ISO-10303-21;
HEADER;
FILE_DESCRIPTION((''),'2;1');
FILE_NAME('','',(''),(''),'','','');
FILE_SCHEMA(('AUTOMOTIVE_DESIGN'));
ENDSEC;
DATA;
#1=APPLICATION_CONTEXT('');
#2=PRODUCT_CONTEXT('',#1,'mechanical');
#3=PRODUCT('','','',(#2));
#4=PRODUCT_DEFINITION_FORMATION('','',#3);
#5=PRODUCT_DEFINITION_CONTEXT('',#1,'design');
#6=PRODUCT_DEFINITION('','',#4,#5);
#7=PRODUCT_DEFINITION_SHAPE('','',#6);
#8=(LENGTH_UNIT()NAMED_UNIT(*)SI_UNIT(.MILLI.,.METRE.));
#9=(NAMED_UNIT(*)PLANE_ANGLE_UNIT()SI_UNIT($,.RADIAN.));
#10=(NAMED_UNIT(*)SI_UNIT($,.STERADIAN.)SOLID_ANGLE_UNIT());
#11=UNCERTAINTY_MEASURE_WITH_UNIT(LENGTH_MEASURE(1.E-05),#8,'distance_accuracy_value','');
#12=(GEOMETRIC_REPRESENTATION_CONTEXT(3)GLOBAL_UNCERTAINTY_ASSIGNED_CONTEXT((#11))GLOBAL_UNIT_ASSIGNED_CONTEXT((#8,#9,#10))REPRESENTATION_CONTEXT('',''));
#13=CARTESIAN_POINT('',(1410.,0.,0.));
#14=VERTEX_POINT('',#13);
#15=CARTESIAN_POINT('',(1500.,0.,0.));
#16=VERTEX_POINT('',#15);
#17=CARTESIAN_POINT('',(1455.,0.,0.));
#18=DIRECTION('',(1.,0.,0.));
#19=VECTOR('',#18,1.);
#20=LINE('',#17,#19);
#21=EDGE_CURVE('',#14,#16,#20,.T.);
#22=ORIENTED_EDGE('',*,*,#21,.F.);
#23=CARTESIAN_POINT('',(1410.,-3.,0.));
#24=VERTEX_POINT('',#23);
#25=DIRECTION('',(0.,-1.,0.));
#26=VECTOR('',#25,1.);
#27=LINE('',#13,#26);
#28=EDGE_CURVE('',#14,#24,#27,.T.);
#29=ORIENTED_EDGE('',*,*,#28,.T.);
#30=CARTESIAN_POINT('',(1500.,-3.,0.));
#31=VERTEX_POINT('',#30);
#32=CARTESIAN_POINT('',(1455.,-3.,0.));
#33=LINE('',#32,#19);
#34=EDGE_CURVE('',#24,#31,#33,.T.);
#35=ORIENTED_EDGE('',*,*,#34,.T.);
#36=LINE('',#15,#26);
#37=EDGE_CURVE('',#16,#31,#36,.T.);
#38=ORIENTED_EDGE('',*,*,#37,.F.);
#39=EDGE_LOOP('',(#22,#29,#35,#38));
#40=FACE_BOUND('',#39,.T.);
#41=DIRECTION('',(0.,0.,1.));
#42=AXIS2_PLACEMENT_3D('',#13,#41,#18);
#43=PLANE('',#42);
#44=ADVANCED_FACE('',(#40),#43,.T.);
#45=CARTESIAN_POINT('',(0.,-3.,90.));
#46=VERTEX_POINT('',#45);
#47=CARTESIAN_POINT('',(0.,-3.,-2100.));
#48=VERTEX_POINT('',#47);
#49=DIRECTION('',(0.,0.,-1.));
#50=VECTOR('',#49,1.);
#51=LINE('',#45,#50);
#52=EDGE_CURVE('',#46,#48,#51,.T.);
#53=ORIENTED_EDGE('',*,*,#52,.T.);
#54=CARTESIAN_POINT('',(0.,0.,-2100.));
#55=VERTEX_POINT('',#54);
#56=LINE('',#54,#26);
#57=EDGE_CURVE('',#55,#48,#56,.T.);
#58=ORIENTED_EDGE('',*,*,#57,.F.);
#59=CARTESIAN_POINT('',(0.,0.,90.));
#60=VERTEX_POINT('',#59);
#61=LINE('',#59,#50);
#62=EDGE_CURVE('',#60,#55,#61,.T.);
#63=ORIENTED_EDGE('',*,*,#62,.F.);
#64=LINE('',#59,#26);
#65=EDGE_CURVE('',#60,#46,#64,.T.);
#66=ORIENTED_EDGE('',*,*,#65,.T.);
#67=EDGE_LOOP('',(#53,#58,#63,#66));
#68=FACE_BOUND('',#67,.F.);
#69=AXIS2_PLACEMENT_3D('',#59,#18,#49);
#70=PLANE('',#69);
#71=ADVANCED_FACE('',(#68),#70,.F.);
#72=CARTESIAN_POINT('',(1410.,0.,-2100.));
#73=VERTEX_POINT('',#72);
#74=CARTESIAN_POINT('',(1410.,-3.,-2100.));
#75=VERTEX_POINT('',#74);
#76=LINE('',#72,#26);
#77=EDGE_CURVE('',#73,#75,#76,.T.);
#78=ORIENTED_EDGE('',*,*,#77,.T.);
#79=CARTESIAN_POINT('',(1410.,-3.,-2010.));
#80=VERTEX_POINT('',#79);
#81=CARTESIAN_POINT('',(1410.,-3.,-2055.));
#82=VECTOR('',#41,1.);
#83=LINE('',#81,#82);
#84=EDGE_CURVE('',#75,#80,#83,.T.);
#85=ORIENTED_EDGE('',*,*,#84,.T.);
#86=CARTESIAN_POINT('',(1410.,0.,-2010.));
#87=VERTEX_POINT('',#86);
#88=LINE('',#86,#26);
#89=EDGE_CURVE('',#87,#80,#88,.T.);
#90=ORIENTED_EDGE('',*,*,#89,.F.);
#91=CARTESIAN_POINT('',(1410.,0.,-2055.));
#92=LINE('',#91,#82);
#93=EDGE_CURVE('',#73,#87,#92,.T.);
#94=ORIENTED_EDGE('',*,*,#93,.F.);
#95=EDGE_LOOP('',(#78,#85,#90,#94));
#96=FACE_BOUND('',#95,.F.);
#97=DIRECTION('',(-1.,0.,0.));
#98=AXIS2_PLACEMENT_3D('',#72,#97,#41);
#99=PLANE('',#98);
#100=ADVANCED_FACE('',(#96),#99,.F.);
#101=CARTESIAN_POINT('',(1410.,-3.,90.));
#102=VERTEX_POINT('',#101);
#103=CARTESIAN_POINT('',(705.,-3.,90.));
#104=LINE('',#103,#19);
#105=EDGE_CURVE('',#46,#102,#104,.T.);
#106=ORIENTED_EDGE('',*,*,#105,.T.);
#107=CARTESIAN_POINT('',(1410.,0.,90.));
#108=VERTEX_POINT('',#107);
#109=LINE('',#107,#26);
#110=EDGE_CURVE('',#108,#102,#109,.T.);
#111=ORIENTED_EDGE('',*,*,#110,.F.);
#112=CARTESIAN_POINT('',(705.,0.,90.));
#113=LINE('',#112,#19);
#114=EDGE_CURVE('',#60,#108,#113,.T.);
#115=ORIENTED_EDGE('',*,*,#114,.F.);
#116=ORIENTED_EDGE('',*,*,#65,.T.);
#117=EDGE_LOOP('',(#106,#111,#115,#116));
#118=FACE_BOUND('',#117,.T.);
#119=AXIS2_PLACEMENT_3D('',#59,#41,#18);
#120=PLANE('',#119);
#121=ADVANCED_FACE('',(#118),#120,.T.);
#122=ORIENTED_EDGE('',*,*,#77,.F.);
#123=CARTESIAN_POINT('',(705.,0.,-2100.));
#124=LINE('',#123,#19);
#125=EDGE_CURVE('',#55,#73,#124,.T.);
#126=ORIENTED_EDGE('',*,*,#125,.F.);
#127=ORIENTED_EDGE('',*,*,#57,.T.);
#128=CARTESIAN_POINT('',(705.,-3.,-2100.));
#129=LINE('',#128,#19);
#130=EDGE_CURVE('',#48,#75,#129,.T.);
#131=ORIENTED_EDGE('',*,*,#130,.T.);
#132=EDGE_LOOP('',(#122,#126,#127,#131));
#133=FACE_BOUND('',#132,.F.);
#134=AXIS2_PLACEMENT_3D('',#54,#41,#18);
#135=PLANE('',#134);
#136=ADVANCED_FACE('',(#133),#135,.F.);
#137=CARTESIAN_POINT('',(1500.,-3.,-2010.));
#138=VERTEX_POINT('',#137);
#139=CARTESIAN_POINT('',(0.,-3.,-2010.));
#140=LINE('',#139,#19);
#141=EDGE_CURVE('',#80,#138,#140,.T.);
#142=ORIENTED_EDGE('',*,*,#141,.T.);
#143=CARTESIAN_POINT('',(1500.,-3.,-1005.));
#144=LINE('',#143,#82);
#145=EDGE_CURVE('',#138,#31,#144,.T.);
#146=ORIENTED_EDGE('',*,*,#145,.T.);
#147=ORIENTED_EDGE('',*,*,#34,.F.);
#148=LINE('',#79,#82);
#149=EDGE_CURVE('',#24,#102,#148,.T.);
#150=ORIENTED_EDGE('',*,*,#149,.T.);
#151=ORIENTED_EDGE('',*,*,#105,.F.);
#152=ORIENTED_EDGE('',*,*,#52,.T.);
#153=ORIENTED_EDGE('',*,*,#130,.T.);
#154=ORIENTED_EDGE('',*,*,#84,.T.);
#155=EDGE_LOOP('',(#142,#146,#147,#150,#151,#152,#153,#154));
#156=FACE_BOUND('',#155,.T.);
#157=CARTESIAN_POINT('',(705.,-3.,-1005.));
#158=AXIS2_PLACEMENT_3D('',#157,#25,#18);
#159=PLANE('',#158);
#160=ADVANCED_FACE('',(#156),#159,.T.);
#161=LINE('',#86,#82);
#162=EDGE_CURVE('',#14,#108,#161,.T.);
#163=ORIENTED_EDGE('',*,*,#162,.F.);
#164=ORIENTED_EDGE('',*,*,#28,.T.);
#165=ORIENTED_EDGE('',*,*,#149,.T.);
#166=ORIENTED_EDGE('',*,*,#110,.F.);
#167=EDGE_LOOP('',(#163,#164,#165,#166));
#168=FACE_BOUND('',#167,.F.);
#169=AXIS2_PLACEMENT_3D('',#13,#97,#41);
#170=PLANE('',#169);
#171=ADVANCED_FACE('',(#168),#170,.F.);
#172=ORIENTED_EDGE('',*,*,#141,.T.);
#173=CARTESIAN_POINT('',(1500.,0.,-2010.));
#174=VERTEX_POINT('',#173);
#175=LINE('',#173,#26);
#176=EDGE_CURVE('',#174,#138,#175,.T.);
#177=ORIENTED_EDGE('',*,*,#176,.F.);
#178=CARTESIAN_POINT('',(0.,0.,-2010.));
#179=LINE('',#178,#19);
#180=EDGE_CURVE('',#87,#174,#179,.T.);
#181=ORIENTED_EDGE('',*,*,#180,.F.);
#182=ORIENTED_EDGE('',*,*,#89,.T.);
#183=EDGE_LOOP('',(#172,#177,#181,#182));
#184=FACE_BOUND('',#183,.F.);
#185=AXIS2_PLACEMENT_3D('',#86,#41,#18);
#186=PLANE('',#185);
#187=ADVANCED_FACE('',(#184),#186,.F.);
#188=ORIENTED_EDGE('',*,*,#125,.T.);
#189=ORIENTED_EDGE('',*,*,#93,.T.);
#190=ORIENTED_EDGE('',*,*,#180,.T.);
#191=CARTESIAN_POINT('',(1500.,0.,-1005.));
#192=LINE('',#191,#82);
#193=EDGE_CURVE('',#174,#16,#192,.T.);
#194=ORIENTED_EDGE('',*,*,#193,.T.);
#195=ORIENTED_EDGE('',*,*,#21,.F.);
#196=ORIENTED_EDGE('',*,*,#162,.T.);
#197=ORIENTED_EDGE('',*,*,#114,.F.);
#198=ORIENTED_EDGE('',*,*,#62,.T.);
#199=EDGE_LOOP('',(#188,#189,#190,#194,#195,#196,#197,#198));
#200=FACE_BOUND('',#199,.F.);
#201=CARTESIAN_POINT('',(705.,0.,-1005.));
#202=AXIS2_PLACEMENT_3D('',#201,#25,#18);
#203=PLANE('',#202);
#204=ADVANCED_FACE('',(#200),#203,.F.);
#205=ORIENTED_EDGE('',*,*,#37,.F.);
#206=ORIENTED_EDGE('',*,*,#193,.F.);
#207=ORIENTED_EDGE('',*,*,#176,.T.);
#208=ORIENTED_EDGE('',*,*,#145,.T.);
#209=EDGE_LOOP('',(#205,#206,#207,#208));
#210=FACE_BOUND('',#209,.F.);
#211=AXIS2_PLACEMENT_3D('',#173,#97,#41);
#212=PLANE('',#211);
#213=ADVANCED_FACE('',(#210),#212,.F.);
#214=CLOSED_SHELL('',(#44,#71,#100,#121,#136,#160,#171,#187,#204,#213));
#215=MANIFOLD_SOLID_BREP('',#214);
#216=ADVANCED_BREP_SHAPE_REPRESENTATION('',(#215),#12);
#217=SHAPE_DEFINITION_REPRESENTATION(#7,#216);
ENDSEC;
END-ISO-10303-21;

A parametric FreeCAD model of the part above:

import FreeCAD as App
import Part
import Sketcher
Q = App.Units.Quantity


def add_polygon(sketch, points):
    """Adds a closed chain of lines whose ends are joined by coincident constraints."""
    first, n = sketch.GeometryCount, len(points)
    for a, b in zip(points, points[1:] + points[:1]):
        sketch.addGeometry(Part.LineSegment(App.Vector(*a, 0), App.Vector(*b, 0)), False)
    for i in range(n):
        sketch.addConstraint(Sketcher.Constraint("Coincident", first + i, 2, first + (i + 1) % n, 1))

doc = App.newDocument("Part")
params = doc.addObject("Spreadsheet::Sheet", "Params")
for row, (alias, value) in enumerate([
    ("sketch1_width", "90 mm"),
    ("sketch1_width2", "1410 mm"),
    ("sketch1_height", "2010 mm"),
    ("pad1_length", "3 mm"),
], start=1):
    params.set(f"A{row}", alias)
    params.set(f"B{row}", "=" + value)
    params.setAlias(f"B{row}", alias)

body = doc.addObject("PartDesign::Body", "Body")

sketch1 = body.newObject("Sketcher::SketchObject", "Sketch")
sketch1.AttachmentSupport = (doc.getObject("XZ_Plane"), [""])
sketch1.MapMode = "FlatFace"
add_polygon(sketch1, [(1410, -2010), (1500, -2010), (1500, 0), (1410, 0), (1410, 90), (0, 90), (0, -2100), (1410, -2100)])
sketch1.addConstraint(Sketcher.Constraint("Horizontal", 0))
sketch1.addConstraint(Sketcher.Constraint("Vertical", 1))
sketch1.addConstraint(Sketcher.Constraint("Horizontal", 2))
sketch1.addConstraint(Sketcher.Constraint("Vertical", 3))
sketch1.addConstraint(Sketcher.Constraint("Horizontal", 4))
sketch1.addConstraint(Sketcher.Constraint("Vertical", 5))
sketch1.addConstraint(Sketcher.Constraint("Horizontal", 6))
sketch1.addConstraint(Sketcher.Constraint("Vertical", 7))
sketch1.addConstraint(Sketcher.Constraint("PointOnObject", 1, 2, -1))
sketch1.addConstraint(Sketcher.Constraint("PointOnObject", 4, 2, -2))
sketch1.addConstraint(Sketcher.Constraint("Vertical", 3, 2, 6, 2))
sketch1.addConstraint(Sketcher.Constraint("Equal", 2, 3))
sketch1.addConstraint(Sketcher.Constraint("Equal", 3, 7))
sketch1.addConstraint(Sketcher.Constraint("DistanceX", 0, 1, 0, 2, Q("90 mm")))
sketch1.addConstraint(Sketcher.Constraint("DistanceX", 4, 2, 4, 1, Q("1410 mm")))
sketch1.addConstraint(Sketcher.Constraint("DistanceY", 1, 1, 1, 2, Q("2010 mm")))
sketch1.setExpression("Constraints[21]", "Params.sketch1_width")
sketch1.setExpression("Constraints[22]", "Params.sketch1_width2")
sketch1.setExpression("Constraints[23]", "Params.sketch1_height")
pad1 = body.newObject("PartDesign::Pad", "Pad")
pad1.Profile = sketch1
pad1.setExpression("Length", "Params.pad1_length")

doc.recompute()
